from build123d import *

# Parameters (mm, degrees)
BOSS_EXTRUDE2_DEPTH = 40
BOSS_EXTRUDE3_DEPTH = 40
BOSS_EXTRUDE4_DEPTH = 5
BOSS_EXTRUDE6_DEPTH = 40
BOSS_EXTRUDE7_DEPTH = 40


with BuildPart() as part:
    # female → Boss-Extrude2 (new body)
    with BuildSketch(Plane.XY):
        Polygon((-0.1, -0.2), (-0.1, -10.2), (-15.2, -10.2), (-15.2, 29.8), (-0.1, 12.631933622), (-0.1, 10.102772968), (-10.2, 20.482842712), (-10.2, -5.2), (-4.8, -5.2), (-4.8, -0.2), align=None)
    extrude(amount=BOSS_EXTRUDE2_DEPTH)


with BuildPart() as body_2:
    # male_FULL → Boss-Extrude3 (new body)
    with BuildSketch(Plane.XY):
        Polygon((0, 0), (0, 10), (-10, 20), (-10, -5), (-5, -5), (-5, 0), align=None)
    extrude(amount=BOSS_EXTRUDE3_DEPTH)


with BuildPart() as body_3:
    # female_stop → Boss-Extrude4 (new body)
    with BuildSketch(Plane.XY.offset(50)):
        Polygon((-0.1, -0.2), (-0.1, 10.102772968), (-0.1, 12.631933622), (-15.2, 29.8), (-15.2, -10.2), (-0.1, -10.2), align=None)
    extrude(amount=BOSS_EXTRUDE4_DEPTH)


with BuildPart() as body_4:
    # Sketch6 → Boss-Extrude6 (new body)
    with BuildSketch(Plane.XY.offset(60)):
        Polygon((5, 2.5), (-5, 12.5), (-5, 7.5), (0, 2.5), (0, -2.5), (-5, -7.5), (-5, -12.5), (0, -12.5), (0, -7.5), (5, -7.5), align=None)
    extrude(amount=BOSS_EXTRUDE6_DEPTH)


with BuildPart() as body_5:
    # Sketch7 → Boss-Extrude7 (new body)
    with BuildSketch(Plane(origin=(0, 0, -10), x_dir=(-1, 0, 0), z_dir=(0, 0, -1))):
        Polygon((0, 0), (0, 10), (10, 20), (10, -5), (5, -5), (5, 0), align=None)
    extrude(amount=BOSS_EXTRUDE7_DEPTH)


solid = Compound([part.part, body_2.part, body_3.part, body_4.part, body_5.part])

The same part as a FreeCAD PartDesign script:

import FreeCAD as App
import Part
import Sketcher

V = App.Vector


def add_polygon(sketch, points):
    """Adds a closed chain of lines whose ends are joined by coincident constraints."""
    first, n = sketch.GeometryCount, len(points)
    for a, b in zip(points, points[1:] + points[:1]):
        sketch.addGeometry(Part.LineSegment(App.Vector(*a, 0), App.Vector(*b, 0)), False)
    for i in range(n):
        sketch.addConstraint(Sketcher.Constraint("Coincident", first + i, 2, first + (i + 1) % n, 1))

doc = App.newDocument("Part")
body = doc.addObject("PartDesign::Body", "Body")

sketch1 = body.newObject("Sketcher::SketchObject", "Sketch")
sketch1.AttachmentSupport = (doc.getObject("XY_Plane"), [""])
sketch1.MapMode = "FlatFace"
add_polygon(sketch1, [(-0.1, -10.2), (-0.1, -0.2), (-4.8, -0.2), (-4.8, -5.2), (-10.2, -5.2), (-10.2, 20.482843), (-0.1, 10.102773), (-0.1, 12.631934), (-15.2, 29.8), (-15.2, -10.2)])
sketch1.addConstraint([
    Sketcher.Constraint("Vertical", 0),
    Sketcher.Constraint("Horizontal", 1),
    Sketcher.Constraint("Vertical", 2),
    Sketcher.Constraint("Horizontal", 3),
    Sketcher.Constraint("Vertical", 4),
    Sketcher.Constraint("Vertical", 6),
    Sketcher.Constraint("Vertical", 8),
    Sketcher.Constraint("Horizontal", 9),
    Sketcher.Constraint("Vertical", 0, 2, 5, 2),
    Sketcher.Constraint("DistanceY", 0, 1, 0, 2, 10.0),
    Sketcher.Constraint("DistanceY", 2, 2, 2, 1, 5.0),
    Sketcher.Constraint("DistanceY", 8, 2, 8, 1, 40.0),
    Sketcher.Constraint("DistanceX", 1, 2, 1, 1, 4.7),
    Sketcher.Constraint("DistanceX", 3, 2, 3, 1, 5.4),
    Sketcher.Constraint("DistanceX", 9, 1, 9, 2, 15.1),
    Sketcher.Constraint("DistanceX", 0, 2, -1, 1, 0.1),
    Sketcher.Constraint("DistanceY", 0, 2, -1, 1, 0.2),
    Sketcher.Constraint("DistanceY", 6, 1, 6, 2, 2.529161),
    Sketcher.Constraint("Distance", 5, 14.48295),
    Sketcher.Constraint("Distance", 7, 22.863781),
])
pad1 = body.newObject("PartDesign::Pad", "Pad")
pad1.Profile = sketch1
pad1.Length = 40
body2 = doc.addObject("PartDesign::Body", "Body001")

sketch2 = body2.newObject("Sketcher::SketchObject", "Sketch001")
sketch2.AttachmentSupport = (doc.getObject("XY_Plane001"), [""])
sketch2.MapMode = "FlatFace"
add_polygon(sketch2, [(0, 0), (0, 10), (-10, 20), (-10, -5), (-5, -5), (-5, 0)])
sketch2.addConstraint([
    Sketcher.Constraint("Vertical", 0),
    Sketcher.Constraint("Vertical", 2),
    Sketcher.Constraint("Horizontal", 3),
    Sketcher.Constraint("Vertical", 4),
    Sketcher.Constraint("Horizontal", 5),
    Sketcher.Constraint("Coincident", 5, 2, -1, 1),
    Sketcher.Constraint("Equal", 3, 5),
    Sketcher.Constraint("Equal", 5, 4),
    Sketcher.Constraint("DistanceX", 3, 1, 3, 2, 5.0),
    Sketcher.Constraint("DistanceY", 0, 1, 0, 2, 10.0),
    Sketcher.Constraint("DistanceY", 2, 2, 2, 1, 25.0),
])
pad2 = body2.newObject("PartDesign::Pad", "Pad001")
pad2.Profile = sketch2
pad2.Length = 40
body3 = doc.addObject("PartDesign::Body", "Body002")

sketch3 = body3.newObject("Sketcher::SketchObject", "Sketch002")
sketch3.AttachmentSupport = (doc.getObject("XY_Plane002"), [""])
sketch3.MapMode = "FlatFace"
sketch3.AttachmentOffset = App.Placement(V(0, 0, 50), App.Rotation())
add_polygon(sketch3, [(-0.1, 12.631934), (-15.2, 29.8), (-15.2, -10.2), (-0.1, -10.2)])
sketch3.addConstraint([
    Sketcher.Constraint("Vertical", 1),
    Sketcher.Constraint("Horizontal", 2),
    Sketcher.Constraint("Vertical", 3),
    Sketcher.Constraint("DistanceY", 1, 2, 1, 1, 40.0),
    Sketcher.Constraint("DistanceX", 2, 1, 2, 2, 15.1),
    Sketcher.Constraint("DistanceX", 0, 2, -1, 1, 15.2),
    Sketcher.Constraint("DistanceY", -1, 1, 0, 2, 29.8),
    Sketcher.Constraint("Distance", 0, 22.863781),
])
pad3 = body3.newObject("PartDesign::Pad", "Pad002")
pad3.Profile = sketch3
pad3.Length = 5
body4 = doc.addObject("PartDesign::Body", "Body003")

sketch4 = body4.newObject("Sketcher::SketchObject", "Sketch003")
sketch4.AttachmentSupport = (doc.getObject("XY_Plane003"), [""])
sketch4.MapMode = "FlatFace"
sketch4.AttachmentOffset = App.Placement(V(0, 0, 60), App.Rotation())
add_polygon(sketch4, [(5, 2.5), (-5, 12.5), (-5, 7.5), (0, 2.5), (0, -2.5), (-5, -7.5), (-5, -12.5), (0, -12.5), (0, -7.5), (5, -7.5)])
sketch4.addConstraint([
    Sketcher.Constraint("Vertical", 1),
    Sketcher.Constraint("Vertical", 3),
    Sketcher.Constraint("Vertical", 5),
    Sketcher.Constraint("Horizontal", 6),
    Sketcher.Constraint("Vertical", 7),
    Sketcher.Constraint("Horizontal", 8),
    Sketcher.Constraint("Vertical", 9),
    Sketcher.Constraint("Symmetric", 2, 2, 3, 2, -1, 1),
    Sketcher.Constraint("Symmetric", 1, 2, 8, 2, -1, 1),
    Sketcher.Constraint("Symmetric", 4, 2, 8, 2, -2),
    Sketcher.Constraint("PointOnObject", 6, 2, -2),
    Sketcher.Constraint("Parallel", 0, 2),
    Sketcher.Constraint("Perpendicular", 2, 4),
    Sketcher.Constraint("Horizontal", 2, 2, 9, 2),
    Sketcher.Constraint("Equal", 1, 3),
    Sketcher.Constraint("Equal", 3, 5),
    Sketcher.Constraint("DistanceX", 6, 1, 6, 2, 5.0),
])
pad4 = body4.newObject("PartDesign::Pad", "Pad003")
pad4.Profile = sketch4
pad4.Length = 40
body5 = doc.addObject("PartDesign::Body", "Body004")

sketch5 = body5.newObject("Sketcher::SketchObject", "Sketch004")
sketch5.AttachmentSupport = (doc.getObject("XY_Plane004"), [""])
sketch5.MapMode = "FlatFace"
sketch5.AttachmentOffset = App.Placement(V(0, 0, -10), App.Rotation())
add_polygon(sketch5, [(0, 10), (0, 0), (-5, 0), (-5, -5), (-10, -5), (-10, 20)])
sketch5.addConstraint([
    Sketcher.Constraint("Vertical", 0),
    Sketcher.Constraint("Horizontal", 1),
    Sketcher.Constraint("Vertical", 2),
    Sketcher.Constraint("Horizontal", 3),
    Sketcher.Constraint("Vertical", 4),
    Sketcher.Constraint("Coincident", 0, 2, -1, 1),
    Sketcher.Constraint("Equal", 1, 3),
    Sketcher.Constraint("Equal", 3, 2),
    Sketcher.Constraint("DistanceX", 1, 2, 1, 1, 5.0),
    Sketcher.Constraint("DistanceY", 0, 2, 0, 1, 10.0),
    Sketcher.Constraint("DistanceY", 4, 1, 4, 2, 25.0),
])
pad5 = body5.newObject("PartDesign::Pad", "Pad004")
pad5.Profile = sketch5
pad5.Length = 40
pad5.Reversed = True

doc.recompute()
